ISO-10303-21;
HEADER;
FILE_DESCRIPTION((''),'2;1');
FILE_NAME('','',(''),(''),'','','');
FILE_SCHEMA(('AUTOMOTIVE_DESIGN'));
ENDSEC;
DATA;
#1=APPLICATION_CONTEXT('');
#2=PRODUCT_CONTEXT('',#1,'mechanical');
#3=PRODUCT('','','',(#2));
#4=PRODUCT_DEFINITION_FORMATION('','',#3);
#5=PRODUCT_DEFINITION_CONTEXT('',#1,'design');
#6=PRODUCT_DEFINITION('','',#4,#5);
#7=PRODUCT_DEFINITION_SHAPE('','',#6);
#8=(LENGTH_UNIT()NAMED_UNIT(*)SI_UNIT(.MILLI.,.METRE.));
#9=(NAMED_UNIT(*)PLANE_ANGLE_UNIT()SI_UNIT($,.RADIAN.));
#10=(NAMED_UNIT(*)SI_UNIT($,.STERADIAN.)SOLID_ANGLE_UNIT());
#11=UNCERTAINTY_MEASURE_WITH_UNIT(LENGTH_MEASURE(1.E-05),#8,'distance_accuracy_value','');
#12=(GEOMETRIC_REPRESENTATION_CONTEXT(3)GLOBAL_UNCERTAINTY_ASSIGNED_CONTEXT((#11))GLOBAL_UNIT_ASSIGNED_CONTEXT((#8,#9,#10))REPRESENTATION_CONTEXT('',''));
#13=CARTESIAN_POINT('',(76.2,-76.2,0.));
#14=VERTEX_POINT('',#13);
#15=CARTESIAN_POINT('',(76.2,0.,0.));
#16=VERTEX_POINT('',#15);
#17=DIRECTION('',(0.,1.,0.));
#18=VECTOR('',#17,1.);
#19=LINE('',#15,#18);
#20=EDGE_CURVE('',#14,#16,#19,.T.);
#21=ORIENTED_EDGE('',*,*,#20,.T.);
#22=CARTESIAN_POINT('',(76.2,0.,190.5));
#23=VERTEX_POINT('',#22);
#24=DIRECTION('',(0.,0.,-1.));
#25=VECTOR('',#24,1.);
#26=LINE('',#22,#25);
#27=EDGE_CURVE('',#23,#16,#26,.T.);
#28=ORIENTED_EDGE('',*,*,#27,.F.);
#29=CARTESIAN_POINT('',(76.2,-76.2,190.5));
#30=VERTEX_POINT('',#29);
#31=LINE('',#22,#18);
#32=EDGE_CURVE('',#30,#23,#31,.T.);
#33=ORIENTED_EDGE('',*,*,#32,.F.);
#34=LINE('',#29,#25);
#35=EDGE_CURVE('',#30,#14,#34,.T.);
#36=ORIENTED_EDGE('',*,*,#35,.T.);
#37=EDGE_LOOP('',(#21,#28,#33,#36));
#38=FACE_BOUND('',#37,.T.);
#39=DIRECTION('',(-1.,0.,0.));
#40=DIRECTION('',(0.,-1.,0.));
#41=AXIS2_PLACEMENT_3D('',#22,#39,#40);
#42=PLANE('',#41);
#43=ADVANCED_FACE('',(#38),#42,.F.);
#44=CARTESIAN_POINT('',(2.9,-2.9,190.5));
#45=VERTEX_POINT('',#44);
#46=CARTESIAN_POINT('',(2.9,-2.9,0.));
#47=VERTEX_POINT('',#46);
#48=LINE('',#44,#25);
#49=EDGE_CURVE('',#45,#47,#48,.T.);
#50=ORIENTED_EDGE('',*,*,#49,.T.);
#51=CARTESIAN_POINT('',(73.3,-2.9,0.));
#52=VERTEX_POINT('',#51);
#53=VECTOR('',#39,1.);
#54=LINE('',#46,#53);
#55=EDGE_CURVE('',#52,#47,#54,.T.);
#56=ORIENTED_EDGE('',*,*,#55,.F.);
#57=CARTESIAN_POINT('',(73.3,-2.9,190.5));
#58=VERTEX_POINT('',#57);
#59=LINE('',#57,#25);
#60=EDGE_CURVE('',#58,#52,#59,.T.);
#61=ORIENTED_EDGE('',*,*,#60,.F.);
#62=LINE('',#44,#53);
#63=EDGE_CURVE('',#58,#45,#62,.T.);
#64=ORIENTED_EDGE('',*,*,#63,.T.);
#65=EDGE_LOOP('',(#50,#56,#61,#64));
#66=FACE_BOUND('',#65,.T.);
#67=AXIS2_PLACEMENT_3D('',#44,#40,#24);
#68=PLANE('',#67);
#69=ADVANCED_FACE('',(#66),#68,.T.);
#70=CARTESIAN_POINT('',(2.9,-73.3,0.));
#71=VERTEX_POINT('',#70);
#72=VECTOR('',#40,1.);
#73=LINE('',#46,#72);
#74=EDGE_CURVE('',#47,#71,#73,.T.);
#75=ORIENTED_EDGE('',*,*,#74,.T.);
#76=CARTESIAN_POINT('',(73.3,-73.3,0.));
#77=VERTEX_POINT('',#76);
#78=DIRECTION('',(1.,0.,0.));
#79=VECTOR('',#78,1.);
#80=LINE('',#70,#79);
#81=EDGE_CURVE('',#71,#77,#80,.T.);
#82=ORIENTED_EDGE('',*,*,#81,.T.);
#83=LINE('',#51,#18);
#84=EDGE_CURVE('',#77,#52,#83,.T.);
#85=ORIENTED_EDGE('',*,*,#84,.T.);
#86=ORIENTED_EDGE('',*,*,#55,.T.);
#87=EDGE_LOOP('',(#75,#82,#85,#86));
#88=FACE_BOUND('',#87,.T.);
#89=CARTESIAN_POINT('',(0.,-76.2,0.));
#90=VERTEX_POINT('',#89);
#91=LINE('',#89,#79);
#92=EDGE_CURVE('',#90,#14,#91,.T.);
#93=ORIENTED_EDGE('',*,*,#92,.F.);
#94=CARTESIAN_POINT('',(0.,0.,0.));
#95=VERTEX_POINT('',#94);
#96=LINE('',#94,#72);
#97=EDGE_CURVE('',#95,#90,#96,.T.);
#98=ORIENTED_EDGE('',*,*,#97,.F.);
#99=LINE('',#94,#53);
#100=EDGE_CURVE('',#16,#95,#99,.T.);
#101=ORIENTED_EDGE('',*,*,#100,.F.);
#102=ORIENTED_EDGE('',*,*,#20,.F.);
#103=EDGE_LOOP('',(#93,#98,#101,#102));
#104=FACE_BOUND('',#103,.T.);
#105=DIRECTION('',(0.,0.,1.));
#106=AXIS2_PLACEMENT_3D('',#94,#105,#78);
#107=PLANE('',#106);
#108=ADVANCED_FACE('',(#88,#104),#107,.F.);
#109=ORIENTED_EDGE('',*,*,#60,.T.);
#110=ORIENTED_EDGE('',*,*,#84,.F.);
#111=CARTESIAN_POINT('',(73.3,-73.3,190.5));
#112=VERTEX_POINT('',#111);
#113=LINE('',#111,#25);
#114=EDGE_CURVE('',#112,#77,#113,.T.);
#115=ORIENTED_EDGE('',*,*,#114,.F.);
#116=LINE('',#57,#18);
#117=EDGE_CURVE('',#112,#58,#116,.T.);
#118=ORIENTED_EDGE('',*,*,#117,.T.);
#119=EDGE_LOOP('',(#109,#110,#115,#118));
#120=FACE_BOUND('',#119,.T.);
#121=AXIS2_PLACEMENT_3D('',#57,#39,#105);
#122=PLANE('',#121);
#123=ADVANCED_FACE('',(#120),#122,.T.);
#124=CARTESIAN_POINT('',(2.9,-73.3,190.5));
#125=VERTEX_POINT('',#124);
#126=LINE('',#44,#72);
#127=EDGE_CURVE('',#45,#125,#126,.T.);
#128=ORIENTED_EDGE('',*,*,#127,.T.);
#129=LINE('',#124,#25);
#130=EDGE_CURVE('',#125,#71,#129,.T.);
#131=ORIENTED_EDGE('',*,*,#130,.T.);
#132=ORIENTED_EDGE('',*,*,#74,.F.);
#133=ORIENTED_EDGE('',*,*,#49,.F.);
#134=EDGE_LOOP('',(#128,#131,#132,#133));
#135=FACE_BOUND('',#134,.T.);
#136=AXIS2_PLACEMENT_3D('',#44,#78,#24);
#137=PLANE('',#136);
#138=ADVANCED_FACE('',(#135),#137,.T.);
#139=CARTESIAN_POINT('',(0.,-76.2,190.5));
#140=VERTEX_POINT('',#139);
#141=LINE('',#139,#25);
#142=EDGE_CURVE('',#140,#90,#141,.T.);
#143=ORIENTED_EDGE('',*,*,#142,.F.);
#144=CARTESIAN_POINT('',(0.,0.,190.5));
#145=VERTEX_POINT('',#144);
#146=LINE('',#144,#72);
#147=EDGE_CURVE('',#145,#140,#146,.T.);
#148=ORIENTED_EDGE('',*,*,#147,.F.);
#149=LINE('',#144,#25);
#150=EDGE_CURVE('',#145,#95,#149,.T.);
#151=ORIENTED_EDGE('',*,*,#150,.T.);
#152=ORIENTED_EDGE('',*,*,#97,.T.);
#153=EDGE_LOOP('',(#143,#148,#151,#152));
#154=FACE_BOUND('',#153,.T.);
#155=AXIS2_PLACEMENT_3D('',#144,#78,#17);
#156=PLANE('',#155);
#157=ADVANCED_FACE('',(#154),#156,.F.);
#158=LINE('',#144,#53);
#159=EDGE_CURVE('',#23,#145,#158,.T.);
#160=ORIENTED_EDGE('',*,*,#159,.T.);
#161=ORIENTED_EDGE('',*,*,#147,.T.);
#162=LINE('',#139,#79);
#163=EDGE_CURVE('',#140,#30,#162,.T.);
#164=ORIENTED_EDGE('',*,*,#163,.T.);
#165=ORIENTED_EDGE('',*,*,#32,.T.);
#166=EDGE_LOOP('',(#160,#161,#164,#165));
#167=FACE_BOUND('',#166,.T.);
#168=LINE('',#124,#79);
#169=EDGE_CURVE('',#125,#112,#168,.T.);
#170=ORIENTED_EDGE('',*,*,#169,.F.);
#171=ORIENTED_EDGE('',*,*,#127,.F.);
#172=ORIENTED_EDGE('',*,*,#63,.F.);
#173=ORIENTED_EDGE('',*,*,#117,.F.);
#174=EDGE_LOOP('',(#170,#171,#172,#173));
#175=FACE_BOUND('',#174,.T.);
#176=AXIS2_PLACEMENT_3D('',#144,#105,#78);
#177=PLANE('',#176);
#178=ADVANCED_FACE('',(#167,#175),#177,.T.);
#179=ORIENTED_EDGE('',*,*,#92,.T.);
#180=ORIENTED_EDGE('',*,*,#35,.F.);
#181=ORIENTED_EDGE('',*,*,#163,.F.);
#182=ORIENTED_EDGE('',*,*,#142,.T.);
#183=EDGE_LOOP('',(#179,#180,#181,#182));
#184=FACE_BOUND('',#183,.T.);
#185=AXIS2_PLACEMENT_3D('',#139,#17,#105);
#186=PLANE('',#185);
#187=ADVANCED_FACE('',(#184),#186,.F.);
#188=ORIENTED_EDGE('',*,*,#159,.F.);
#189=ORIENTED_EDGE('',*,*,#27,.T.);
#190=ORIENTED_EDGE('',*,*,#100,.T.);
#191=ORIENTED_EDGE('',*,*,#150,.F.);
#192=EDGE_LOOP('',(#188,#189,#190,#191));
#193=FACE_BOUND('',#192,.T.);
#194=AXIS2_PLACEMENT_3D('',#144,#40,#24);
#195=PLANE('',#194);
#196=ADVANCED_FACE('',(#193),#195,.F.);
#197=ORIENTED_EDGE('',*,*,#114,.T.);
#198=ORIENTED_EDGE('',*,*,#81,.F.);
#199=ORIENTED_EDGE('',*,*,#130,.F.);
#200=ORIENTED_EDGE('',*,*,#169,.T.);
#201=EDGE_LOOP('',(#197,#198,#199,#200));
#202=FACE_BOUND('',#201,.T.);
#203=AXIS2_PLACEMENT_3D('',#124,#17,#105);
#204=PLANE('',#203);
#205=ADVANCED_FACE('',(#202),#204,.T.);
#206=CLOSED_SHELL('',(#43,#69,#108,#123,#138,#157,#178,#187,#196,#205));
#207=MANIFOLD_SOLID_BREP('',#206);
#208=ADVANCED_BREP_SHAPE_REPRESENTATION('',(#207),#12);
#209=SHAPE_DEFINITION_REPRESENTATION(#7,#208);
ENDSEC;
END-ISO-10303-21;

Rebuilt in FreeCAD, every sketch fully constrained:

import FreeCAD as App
import Part
import Sketcher
from FreeCAD import Vector
Q = App.Units.Quantity


def add_polygon(sketch, points):
    """Adds a closed chain of lines whose ends are joined by coincident constraints."""
    first, n = sketch.GeometryCount, len(points)
    for a, b in zip(points, points[1:] + points[:1]):
        sketch.addGeometry(Part.LineSegment(App.Vector(*a, 0), App.Vector(*b, 0)), False)
    for i in range(n):
        sketch.addConstraint(Sketcher.Constraint("Coincident", first + i, 2, first + (i + 1) % n, 1))

doc = App.newDocument("Part")
body = doc.addObject("PartDesign::Body", "Body")

# Sketch on XY plane
sketch1 = body.newObject("Sketcher::SketchObject", "Sketch")
sketch1.AttachmentSupport = (doc.getObject("XY_Plane"), [""])
sketch1.MapMode = "FlatFace"
add_polygon(sketch1, [(0, 0), (0, -76), (76, -76), (76, 0)])  # lines 0-3
add_polygon(sketch1, [(73, -73), (3, -73), (3, -3), (73, -3)])  # lines 4-7
sketch1.addConstraint(Sketcher.Constraint("Vertical", 0))
sketch1.addConstraint(Sketcher.Constraint("Horizontal", 1))
sketch1.addConstraint(Sketcher.Constraint("Vertical", 2))
sketch1.addConstraint(Sketcher.Constraint("Horizontal", 3))
sketch1.addConstraint(Sketcher.Constraint("Horizontal", 4))
sketch1.addConstraint(Sketcher.Constraint("Vertical", 5))
sketch1.addConstraint(Sketcher.Constraint("Horizontal", 6))
sketch1.addConstraint(Sketcher.Constraint("Vertical", 7))
sketch1.addConstraint(Sketcher.Constraint("Coincident", 3, 2, -1, 1))
sketch1.addConstraint(Sketcher.Constraint("Equal", 3, 0))
sketch1.addConstraint(Sketcher.Constraint("Equal", 6, 5))
sketch1.addConstraint(Sketcher.Constraint("DistanceX", 1, 1, 1, 2, Q("3 in")))
sketch1.addConstraint(Sketcher.Constraint("DistanceX", 4, 2, 4, 1, 70.4))
sketch1.addConstraint(Sketcher.Constraint("DistanceX", -1, 1, 4, 2, 2.9))
sketch1.addConstraint(Sketcher.Constraint("DistanceY", 4, 2, -1, 1, 73.3))
pad1 = body.newObject("PartDesign::Pad", "Pad")
pad1.Profile = sketch1
pad1.Length = Q("7.5 in")

doc.recompute()
